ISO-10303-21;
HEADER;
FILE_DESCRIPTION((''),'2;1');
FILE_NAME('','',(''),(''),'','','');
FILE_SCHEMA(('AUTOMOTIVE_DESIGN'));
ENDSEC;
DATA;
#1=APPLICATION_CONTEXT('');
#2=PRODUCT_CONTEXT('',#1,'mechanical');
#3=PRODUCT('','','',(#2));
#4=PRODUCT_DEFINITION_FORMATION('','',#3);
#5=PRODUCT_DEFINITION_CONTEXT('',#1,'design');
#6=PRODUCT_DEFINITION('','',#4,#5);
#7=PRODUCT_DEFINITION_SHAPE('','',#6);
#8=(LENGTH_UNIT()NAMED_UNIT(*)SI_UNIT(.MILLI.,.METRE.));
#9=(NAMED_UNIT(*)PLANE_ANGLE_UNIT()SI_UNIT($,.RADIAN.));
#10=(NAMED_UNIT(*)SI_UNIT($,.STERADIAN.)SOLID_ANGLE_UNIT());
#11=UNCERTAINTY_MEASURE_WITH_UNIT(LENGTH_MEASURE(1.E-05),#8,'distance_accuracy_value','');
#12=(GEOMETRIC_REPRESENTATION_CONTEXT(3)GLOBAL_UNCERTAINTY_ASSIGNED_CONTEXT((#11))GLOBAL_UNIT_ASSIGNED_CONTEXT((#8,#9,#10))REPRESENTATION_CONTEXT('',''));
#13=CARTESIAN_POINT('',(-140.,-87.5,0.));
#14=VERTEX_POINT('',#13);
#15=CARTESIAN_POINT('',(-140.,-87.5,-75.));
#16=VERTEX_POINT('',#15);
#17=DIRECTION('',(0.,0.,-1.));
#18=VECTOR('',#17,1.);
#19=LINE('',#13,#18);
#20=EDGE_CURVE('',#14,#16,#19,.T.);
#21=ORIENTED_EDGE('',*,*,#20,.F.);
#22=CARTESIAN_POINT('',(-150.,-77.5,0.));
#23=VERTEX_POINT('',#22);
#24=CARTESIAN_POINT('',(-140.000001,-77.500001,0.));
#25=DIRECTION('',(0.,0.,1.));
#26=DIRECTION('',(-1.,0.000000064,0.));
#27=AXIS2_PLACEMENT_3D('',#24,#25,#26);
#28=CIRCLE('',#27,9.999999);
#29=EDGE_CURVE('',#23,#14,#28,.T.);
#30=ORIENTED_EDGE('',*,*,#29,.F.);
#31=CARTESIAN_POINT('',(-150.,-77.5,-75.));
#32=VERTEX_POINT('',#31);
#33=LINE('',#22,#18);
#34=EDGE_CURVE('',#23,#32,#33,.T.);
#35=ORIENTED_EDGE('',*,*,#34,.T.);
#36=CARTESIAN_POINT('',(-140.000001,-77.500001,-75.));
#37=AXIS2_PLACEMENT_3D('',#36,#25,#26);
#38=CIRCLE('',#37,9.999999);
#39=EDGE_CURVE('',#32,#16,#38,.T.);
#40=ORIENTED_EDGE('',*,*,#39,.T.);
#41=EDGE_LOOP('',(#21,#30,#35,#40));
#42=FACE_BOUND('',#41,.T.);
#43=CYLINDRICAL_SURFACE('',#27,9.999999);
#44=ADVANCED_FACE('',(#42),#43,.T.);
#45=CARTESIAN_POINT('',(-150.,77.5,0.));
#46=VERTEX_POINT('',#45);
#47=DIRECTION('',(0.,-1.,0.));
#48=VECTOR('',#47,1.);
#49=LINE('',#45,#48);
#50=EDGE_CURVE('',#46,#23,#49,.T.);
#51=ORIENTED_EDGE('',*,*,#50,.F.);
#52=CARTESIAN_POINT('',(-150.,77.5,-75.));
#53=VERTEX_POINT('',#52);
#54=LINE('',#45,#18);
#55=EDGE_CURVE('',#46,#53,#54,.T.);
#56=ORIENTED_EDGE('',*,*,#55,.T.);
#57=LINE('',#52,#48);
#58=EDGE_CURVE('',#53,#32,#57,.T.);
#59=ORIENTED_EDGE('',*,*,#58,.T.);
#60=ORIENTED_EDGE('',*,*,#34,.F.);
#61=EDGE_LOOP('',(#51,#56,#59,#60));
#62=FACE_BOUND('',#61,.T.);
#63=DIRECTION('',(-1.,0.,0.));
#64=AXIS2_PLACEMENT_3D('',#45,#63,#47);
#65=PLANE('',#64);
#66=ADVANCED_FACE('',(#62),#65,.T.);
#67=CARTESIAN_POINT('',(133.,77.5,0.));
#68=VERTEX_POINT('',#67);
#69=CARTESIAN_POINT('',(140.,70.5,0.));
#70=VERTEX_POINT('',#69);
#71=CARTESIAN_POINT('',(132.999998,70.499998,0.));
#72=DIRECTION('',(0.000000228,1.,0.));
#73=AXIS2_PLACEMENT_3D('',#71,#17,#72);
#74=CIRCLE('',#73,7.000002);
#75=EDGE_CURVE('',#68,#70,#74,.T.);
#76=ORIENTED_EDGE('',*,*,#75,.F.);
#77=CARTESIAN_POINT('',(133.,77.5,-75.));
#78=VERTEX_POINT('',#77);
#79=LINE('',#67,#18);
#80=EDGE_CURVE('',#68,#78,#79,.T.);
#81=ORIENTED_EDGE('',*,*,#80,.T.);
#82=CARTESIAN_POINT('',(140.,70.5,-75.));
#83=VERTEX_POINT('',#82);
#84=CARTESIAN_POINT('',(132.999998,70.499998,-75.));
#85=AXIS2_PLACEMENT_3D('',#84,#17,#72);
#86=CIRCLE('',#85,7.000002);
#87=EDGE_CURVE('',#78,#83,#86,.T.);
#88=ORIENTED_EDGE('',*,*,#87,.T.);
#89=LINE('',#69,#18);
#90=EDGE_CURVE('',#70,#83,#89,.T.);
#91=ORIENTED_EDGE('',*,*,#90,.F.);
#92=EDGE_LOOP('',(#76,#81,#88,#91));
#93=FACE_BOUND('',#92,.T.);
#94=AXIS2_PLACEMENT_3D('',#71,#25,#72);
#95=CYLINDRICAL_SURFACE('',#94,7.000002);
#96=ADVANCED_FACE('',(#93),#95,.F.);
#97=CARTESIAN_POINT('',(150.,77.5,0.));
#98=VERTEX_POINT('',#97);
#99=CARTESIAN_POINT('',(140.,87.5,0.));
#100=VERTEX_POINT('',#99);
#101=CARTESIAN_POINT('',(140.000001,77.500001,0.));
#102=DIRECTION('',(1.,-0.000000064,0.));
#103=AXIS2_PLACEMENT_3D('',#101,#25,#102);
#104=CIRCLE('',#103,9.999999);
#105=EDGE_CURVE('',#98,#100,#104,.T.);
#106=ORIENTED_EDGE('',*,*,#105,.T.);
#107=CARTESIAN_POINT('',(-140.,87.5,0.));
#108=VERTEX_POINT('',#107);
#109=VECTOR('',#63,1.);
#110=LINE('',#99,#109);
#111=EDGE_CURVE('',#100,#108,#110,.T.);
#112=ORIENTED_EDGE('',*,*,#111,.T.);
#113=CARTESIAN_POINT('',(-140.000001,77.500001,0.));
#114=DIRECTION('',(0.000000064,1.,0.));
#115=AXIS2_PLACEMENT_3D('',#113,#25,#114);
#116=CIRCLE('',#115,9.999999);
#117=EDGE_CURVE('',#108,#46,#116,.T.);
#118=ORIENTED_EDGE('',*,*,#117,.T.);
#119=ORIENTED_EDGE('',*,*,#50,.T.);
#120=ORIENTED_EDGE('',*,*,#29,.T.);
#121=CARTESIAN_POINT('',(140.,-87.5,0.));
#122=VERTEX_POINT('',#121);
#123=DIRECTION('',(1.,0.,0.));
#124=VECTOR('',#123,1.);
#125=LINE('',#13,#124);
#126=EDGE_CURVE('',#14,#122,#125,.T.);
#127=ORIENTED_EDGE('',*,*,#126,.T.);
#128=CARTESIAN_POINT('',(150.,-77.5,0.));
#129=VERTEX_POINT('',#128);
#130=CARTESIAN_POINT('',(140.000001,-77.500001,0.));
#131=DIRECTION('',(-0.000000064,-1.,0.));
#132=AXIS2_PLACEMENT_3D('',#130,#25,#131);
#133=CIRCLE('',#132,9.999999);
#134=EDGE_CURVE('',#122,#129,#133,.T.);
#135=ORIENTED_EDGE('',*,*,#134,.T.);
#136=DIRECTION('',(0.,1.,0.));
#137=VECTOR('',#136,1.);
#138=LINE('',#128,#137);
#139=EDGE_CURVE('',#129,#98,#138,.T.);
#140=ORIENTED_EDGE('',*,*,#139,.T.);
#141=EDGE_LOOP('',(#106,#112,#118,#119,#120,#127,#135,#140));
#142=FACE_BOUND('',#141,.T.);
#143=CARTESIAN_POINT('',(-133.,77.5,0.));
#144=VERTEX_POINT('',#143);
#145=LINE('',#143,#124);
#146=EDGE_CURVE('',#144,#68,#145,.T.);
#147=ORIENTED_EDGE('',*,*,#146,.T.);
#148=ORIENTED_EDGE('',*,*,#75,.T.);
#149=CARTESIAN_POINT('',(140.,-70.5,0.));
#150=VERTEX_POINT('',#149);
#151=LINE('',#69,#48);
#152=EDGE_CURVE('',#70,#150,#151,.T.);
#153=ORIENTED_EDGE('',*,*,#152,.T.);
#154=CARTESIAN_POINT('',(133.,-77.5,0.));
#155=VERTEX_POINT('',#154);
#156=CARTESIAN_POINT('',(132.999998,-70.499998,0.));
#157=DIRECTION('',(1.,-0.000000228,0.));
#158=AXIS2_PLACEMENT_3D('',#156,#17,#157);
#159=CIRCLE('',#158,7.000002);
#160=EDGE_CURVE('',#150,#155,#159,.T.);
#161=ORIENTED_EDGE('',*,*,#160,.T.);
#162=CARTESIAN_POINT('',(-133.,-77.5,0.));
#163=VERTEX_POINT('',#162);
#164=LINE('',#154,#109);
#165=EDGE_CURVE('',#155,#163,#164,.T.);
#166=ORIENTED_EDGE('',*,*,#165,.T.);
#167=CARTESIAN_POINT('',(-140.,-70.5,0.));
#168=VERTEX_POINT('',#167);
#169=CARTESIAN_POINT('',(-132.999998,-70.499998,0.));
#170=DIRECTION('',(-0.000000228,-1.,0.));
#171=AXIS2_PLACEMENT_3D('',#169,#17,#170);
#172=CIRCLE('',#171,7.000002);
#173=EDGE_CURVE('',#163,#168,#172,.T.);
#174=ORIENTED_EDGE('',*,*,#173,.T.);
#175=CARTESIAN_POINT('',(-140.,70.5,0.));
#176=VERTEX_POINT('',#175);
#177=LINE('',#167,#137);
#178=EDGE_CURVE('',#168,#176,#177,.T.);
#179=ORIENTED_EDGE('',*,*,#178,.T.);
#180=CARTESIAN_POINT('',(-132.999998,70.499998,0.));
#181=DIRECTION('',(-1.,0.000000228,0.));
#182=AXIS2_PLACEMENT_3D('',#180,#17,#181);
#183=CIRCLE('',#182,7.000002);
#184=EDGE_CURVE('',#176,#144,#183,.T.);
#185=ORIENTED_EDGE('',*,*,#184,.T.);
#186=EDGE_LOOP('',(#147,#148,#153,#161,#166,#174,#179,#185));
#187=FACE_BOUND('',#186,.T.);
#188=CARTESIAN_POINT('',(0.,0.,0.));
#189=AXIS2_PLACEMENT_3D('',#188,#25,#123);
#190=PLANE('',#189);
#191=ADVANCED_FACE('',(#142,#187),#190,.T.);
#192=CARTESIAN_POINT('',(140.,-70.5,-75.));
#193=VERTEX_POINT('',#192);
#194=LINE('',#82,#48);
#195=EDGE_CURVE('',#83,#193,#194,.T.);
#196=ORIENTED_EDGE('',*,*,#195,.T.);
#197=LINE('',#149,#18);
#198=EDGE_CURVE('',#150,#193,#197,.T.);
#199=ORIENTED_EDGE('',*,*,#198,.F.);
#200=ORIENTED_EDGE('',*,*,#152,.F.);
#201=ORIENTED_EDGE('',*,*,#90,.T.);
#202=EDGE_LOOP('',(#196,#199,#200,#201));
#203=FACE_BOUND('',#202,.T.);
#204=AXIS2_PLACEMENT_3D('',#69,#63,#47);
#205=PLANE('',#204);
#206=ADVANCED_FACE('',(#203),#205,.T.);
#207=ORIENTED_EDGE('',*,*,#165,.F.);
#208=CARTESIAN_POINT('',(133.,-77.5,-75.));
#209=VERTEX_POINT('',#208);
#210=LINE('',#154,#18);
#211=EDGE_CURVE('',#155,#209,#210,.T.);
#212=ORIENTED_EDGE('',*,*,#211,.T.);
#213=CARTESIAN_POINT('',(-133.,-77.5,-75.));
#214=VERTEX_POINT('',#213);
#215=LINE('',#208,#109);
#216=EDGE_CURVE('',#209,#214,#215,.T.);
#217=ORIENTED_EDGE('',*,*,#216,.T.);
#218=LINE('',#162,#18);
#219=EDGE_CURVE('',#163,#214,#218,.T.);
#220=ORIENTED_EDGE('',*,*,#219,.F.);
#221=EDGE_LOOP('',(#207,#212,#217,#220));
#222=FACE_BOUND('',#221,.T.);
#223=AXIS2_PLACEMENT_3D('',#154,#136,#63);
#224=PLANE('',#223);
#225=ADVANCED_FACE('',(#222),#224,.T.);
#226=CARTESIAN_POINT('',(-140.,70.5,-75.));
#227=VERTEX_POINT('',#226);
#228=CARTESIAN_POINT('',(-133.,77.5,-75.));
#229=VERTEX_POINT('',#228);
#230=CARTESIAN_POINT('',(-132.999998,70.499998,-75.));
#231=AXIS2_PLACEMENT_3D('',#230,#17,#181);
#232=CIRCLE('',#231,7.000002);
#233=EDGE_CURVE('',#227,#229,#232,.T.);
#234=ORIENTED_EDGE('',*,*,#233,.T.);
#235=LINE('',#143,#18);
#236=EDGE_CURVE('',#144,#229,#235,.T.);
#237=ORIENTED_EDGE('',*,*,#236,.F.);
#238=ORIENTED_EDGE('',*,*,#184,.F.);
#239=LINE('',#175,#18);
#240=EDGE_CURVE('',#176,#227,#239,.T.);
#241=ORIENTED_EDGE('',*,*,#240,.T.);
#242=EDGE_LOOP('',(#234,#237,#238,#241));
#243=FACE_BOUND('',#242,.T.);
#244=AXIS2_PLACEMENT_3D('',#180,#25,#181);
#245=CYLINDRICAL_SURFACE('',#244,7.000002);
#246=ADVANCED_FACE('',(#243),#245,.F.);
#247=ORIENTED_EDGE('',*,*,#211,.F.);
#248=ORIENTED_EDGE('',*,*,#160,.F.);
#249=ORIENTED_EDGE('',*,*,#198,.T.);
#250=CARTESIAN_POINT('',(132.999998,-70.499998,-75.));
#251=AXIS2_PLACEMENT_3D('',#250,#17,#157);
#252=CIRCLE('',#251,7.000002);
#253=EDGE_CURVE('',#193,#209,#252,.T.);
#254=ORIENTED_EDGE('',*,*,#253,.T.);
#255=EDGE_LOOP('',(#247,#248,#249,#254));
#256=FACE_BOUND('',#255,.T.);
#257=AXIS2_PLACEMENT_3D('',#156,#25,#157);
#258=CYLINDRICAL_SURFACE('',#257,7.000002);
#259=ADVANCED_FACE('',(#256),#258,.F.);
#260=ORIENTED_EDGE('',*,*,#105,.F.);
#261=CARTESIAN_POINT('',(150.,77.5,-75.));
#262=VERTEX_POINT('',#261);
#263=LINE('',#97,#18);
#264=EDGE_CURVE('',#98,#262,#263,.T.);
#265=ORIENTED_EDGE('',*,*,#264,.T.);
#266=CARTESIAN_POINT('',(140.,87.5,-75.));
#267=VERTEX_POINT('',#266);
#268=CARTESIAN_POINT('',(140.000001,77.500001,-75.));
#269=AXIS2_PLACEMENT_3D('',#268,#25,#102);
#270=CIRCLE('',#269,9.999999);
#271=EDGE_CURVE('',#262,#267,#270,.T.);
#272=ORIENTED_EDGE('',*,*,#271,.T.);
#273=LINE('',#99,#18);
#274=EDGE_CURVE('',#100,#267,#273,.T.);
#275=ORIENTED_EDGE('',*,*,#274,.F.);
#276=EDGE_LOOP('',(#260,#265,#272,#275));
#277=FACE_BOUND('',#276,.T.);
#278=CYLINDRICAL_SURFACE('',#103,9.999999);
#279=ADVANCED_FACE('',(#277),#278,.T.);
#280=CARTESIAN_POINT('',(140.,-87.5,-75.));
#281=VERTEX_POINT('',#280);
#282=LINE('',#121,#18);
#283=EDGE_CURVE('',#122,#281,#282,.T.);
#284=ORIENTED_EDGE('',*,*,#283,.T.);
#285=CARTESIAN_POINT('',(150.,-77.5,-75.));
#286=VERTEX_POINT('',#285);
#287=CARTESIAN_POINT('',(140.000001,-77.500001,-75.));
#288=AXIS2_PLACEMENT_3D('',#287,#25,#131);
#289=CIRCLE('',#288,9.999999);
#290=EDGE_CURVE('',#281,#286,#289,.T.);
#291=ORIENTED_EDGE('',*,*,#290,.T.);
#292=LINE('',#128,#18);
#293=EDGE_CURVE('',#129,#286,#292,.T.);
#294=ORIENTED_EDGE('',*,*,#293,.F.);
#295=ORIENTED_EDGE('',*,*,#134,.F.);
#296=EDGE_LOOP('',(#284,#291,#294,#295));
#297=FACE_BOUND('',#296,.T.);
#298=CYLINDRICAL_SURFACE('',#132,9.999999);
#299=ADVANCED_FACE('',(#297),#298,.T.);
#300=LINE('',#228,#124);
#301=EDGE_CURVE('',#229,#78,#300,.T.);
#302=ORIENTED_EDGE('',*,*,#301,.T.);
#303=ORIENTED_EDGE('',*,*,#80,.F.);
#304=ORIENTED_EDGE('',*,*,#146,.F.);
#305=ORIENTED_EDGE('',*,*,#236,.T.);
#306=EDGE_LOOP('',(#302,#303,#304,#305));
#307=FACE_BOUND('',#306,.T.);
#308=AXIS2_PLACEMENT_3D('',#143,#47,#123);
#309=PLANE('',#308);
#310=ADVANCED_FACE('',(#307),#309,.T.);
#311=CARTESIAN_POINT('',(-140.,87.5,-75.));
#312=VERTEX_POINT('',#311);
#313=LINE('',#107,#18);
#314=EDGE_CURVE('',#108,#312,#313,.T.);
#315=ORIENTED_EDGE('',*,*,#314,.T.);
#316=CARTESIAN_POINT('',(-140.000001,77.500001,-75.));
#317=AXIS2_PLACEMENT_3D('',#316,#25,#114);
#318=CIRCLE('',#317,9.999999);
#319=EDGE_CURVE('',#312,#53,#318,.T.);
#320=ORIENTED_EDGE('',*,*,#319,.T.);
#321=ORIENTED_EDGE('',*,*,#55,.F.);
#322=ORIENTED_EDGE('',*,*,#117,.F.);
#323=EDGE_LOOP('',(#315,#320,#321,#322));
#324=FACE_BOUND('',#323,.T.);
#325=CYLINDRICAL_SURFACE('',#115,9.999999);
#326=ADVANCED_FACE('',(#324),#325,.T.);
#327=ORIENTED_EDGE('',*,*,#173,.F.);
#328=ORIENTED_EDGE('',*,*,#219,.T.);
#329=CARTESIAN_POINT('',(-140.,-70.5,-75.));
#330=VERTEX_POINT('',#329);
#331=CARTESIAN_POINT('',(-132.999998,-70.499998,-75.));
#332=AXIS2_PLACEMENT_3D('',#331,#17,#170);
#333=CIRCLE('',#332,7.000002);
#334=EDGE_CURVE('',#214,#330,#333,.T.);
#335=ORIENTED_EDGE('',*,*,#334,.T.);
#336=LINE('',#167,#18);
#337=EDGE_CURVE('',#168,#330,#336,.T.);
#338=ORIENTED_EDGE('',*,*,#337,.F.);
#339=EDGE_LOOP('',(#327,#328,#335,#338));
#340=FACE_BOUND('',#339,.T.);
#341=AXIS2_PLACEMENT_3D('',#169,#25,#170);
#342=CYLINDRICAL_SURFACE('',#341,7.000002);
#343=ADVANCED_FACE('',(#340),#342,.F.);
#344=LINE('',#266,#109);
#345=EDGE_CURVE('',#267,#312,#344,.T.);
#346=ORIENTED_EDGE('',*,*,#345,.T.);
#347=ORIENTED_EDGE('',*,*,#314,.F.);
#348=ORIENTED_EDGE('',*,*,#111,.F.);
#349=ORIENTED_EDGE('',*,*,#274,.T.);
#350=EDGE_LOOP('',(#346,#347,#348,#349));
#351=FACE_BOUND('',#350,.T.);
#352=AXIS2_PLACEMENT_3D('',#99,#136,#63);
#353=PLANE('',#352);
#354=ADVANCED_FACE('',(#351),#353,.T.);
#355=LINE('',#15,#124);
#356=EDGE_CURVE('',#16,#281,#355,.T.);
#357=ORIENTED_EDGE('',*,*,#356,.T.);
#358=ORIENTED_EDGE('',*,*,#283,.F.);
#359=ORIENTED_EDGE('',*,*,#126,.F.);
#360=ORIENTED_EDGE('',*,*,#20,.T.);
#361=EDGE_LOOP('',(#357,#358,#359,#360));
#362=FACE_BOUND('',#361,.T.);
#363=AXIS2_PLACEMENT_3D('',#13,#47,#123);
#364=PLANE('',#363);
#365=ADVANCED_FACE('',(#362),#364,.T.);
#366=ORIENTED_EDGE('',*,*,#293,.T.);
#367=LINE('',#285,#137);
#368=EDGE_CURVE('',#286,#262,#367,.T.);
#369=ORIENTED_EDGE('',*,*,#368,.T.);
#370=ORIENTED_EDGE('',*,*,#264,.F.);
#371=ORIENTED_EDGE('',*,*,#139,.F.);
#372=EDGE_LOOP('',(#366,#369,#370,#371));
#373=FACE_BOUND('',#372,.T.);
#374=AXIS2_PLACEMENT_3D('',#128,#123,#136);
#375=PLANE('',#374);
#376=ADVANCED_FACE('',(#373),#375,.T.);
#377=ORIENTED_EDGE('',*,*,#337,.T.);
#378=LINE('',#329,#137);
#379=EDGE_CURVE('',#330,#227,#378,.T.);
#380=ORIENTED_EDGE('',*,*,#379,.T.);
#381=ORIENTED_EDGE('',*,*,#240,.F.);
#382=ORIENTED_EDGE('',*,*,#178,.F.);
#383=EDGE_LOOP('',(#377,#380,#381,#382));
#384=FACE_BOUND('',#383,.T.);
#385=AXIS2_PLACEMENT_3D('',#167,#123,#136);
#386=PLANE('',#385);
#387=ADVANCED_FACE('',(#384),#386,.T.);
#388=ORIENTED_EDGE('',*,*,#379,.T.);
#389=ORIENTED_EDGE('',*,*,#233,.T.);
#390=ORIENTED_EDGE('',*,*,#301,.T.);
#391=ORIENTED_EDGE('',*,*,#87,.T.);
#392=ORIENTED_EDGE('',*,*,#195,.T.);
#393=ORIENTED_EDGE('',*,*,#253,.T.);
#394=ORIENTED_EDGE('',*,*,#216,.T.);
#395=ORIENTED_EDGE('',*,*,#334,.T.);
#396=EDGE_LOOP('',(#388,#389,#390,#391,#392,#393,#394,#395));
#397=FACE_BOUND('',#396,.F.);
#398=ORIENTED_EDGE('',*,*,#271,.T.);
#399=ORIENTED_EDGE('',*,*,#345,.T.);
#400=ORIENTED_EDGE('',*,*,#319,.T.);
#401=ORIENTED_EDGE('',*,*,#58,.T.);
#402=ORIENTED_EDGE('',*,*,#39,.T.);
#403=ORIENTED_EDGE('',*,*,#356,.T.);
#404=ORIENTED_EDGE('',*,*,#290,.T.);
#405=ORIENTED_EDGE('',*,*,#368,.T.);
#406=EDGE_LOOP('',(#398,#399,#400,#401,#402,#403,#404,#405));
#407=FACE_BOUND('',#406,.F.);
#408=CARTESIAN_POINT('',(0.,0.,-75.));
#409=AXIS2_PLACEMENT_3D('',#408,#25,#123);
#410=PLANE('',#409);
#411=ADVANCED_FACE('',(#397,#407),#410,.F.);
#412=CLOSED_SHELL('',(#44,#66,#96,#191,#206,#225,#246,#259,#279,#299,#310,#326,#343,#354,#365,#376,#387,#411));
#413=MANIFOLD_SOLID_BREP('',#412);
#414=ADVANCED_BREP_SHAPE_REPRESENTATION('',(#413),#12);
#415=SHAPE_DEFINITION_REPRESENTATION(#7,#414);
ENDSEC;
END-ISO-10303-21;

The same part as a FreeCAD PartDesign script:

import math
import FreeCAD as App
import Part
import Sketcher
from FreeCAD import Vector
Q = App.Units.Quantity

doc = App.newDocument("Part")
body = doc.addObject("PartDesign::Body", "Body")

# Sketch on XY plane
sketch1 = doc.addObject("Sketcher::SketchObject", "Sketch")
body.addObject(sketch1)
sketch1.AttachmentSupport = (doc.XY_Plane, [""])
sketch1.MapMode = "FlatFace"
sketch1.addGeometry(Part.LineSegment(Vector(140, 88, 0), Vector(-140, 88, 0)), False)
sketch1.addGeometry(Part.ArcOfCircle(Part.Circle(Vector(-140, 78, 0), Vector(0, 0, 1), 10), math.radians(90), math.radians(180)), False)
sketch1.addGeometry(Part.LineSegment(Vector(-150, 78, 0), Vector(-150, -78, 0)), False)
sketch1.addGeometry(Part.ArcOfCircle(Part.Circle(Vector(-140, -78, 0), Vector(0, 0, 1), 10), math.radians(180), math.radians(270)), False)
sketch1.addGeometry(Part.LineSegment(Vector(-140, -88, 0), Vector(140, -88, 0)), False)
sketch1.addGeometry(Part.ArcOfCircle(Part.Circle(Vector(140, -78, 0), Vector(0, 0, 1), 10), math.radians(-90), math.radians(0)), False)
sketch1.addGeometry(Part.LineSegment(Vector(150, -78, 0), Vector(150, 78, 0)), False)
sketch1.addGeometry(Part.ArcOfCircle(Part.Circle(Vector(140, 78, 0), Vector(0, 0, 1), 10), math.radians(0), math.radians(90)), False)
sketch1.addGeometry(Part.LineSegment(Vector(-140, -70, 0), Vector(-140, 70, 0)), False)
sketch1.addGeometry(Part.ArcOfCircle(Part.Circle(Vector(-133, 70, 0), Vector(0, 0, 1), 7), math.radians(90), math.radians(180)), False)
sketch1.addGeometry(Part.LineSegment(Vector(-133, 78, 0), Vector(133, 78, 0)), False)
sketch1.addGeometry(Part.ArcOfCircle(Part.Circle(Vector(133, 70, 0), Vector(0, 0, 1), 7), math.radians(0), math.radians(90)), False)
sketch1.addGeometry(Part.LineSegment(Vector(140, 70, 0), Vector(140, -70, 0)), False)
sketch1.addGeometry(Part.ArcOfCircle(Part.Circle(Vector(133, -70, 0), Vector(0, 0, 1), 7), math.radians(-90), math.radians(0)), False)
sketch1.addGeometry(Part.LineSegment(Vector(133, -78, 0), Vector(-133, -78, 0)), False)
sketch1.addGeometry(Part.ArcOfCircle(Part.Circle(Vector(-133, -70, 0), Vector(0, 0, 1), 7), math.radians(-180), math.radians(-90)), False)
sketch1.addConstraint(Sketcher.Constraint("Tangent", 0, 2, 1, 1))
sketch1.addConstraint(Sketcher.Constraint("Tangent", 1, 2, 2, 1))
sketch1.addConstraint(Sketcher.Constraint("Tangent", 2, 2, 3, 1))
sketch1.addConstraint(Sketcher.Constraint("Tangent", 3, 2, 4, 1))
sketch1.addConstraint(Sketcher.Constraint("Tangent", 4, 2, 5, 1))
sketch1.addConstraint(Sketcher.Constraint("Tangent", 5, 2, 6, 1))
sketch1.addConstraint(Sketcher.Constraint("Tangent", 6, 2, 7, 1))
sketch1.addConstraint(Sketcher.Constraint("Tangent", 7, 2, 0, 1))
sketch1.addConstraint(Sketcher.Constraint("Tangent", 8, 2, 9, 2))
sketch1.addConstraint(Sketcher.Constraint("Tangent", 9, 1, 10, 1))
sketch1.addConstraint(Sketcher.Constraint("Tangent", 10, 2, 11, 2))
sketch1.addConstraint(Sketcher.Constraint("Tangent", 11, 1, 12, 1))
sketch1.addConstraint(Sketcher.Constraint("Tangent", 12, 2, 13, 2))
sketch1.addConstraint(Sketcher.Constraint("Tangent", 13, 1, 14, 1))
sketch1.addConstraint(Sketcher.Constraint("Tangent", 14, 2, 15, 2))
sketch1.addConstraint(Sketcher.Constraint("Tangent", 15, 1, 8, 1))
sketch1.addConstraint(Sketcher.Constraint("Horizontal", 0))
sketch1.addConstraint(Sketcher.Constraint("Vertical", 2))
sketch1.addConstraint(Sketcher.Constraint("Horizontal", 4))
sketch1.addConstraint(Sketcher.Constraint("Vertical", 6))
sketch1.addConstraint(Sketcher.Constraint("Vertical", 8))
sketch1.addConstraint(Sketcher.Constraint("Horizontal", 10))
sketch1.addConstraint(Sketcher.Constraint("Vertical", 12))
sketch1.addConstraint(Sketcher.Constraint("Horizontal", 14))
sketch1.addConstraint(Sketcher.Constraint("Equal", 1, 3))
sketch1.addConstraint(Sketcher.Constraint("Equal", 3, 5))
sketch1.addConstraint(Sketcher.Constraint("Equal", 5, 7))
sketch1.addConstraint(Sketcher.Constraint("Equal", 9, 11))
sketch1.addConstraint(Sketcher.Constraint("Equal", 11, 13))
sketch1.addConstraint(Sketcher.Constraint("Equal", 13, 15))
sketch1.addConstraint(Sketcher.Constraint("Symmetric", 1, 3, 5, 3, -1, 1))
sketch1.addConstraint(Sketcher.Constraint("Symmetric", 9, 3, 13, 3, -1, 1))
sketch1.addConstraint(Sketcher.Constraint("Horizontal", 6, 2, 9, 1))
sketch1.addConstraint(Sketcher.Constraint("Vertical", 3, 2, 8, 2))
sketch1.addConstraint(Sketcher.Constraint("Radius", 1, Q("9.999999 mm")))
sketch1.addConstraint(Sketcher.Constraint("Radius", 9, Q("7.000002 mm")))
sketch1.addConstraint(Sketcher.Constraint("DistanceX", 0, 2, 0, 1, Q("280 mm")))
sketch1.addConstraint(Sketcher.Constraint("DistanceY", 2, 2, 2, 1, Q("155 mm")))
pad1 = doc.addObject("PartDesign::Pad", "Pad")
body.addObject(pad1)
pad1.Profile = sketch1
pad1.Length = 75
pad1.Reversed = True

doc.recompute()
